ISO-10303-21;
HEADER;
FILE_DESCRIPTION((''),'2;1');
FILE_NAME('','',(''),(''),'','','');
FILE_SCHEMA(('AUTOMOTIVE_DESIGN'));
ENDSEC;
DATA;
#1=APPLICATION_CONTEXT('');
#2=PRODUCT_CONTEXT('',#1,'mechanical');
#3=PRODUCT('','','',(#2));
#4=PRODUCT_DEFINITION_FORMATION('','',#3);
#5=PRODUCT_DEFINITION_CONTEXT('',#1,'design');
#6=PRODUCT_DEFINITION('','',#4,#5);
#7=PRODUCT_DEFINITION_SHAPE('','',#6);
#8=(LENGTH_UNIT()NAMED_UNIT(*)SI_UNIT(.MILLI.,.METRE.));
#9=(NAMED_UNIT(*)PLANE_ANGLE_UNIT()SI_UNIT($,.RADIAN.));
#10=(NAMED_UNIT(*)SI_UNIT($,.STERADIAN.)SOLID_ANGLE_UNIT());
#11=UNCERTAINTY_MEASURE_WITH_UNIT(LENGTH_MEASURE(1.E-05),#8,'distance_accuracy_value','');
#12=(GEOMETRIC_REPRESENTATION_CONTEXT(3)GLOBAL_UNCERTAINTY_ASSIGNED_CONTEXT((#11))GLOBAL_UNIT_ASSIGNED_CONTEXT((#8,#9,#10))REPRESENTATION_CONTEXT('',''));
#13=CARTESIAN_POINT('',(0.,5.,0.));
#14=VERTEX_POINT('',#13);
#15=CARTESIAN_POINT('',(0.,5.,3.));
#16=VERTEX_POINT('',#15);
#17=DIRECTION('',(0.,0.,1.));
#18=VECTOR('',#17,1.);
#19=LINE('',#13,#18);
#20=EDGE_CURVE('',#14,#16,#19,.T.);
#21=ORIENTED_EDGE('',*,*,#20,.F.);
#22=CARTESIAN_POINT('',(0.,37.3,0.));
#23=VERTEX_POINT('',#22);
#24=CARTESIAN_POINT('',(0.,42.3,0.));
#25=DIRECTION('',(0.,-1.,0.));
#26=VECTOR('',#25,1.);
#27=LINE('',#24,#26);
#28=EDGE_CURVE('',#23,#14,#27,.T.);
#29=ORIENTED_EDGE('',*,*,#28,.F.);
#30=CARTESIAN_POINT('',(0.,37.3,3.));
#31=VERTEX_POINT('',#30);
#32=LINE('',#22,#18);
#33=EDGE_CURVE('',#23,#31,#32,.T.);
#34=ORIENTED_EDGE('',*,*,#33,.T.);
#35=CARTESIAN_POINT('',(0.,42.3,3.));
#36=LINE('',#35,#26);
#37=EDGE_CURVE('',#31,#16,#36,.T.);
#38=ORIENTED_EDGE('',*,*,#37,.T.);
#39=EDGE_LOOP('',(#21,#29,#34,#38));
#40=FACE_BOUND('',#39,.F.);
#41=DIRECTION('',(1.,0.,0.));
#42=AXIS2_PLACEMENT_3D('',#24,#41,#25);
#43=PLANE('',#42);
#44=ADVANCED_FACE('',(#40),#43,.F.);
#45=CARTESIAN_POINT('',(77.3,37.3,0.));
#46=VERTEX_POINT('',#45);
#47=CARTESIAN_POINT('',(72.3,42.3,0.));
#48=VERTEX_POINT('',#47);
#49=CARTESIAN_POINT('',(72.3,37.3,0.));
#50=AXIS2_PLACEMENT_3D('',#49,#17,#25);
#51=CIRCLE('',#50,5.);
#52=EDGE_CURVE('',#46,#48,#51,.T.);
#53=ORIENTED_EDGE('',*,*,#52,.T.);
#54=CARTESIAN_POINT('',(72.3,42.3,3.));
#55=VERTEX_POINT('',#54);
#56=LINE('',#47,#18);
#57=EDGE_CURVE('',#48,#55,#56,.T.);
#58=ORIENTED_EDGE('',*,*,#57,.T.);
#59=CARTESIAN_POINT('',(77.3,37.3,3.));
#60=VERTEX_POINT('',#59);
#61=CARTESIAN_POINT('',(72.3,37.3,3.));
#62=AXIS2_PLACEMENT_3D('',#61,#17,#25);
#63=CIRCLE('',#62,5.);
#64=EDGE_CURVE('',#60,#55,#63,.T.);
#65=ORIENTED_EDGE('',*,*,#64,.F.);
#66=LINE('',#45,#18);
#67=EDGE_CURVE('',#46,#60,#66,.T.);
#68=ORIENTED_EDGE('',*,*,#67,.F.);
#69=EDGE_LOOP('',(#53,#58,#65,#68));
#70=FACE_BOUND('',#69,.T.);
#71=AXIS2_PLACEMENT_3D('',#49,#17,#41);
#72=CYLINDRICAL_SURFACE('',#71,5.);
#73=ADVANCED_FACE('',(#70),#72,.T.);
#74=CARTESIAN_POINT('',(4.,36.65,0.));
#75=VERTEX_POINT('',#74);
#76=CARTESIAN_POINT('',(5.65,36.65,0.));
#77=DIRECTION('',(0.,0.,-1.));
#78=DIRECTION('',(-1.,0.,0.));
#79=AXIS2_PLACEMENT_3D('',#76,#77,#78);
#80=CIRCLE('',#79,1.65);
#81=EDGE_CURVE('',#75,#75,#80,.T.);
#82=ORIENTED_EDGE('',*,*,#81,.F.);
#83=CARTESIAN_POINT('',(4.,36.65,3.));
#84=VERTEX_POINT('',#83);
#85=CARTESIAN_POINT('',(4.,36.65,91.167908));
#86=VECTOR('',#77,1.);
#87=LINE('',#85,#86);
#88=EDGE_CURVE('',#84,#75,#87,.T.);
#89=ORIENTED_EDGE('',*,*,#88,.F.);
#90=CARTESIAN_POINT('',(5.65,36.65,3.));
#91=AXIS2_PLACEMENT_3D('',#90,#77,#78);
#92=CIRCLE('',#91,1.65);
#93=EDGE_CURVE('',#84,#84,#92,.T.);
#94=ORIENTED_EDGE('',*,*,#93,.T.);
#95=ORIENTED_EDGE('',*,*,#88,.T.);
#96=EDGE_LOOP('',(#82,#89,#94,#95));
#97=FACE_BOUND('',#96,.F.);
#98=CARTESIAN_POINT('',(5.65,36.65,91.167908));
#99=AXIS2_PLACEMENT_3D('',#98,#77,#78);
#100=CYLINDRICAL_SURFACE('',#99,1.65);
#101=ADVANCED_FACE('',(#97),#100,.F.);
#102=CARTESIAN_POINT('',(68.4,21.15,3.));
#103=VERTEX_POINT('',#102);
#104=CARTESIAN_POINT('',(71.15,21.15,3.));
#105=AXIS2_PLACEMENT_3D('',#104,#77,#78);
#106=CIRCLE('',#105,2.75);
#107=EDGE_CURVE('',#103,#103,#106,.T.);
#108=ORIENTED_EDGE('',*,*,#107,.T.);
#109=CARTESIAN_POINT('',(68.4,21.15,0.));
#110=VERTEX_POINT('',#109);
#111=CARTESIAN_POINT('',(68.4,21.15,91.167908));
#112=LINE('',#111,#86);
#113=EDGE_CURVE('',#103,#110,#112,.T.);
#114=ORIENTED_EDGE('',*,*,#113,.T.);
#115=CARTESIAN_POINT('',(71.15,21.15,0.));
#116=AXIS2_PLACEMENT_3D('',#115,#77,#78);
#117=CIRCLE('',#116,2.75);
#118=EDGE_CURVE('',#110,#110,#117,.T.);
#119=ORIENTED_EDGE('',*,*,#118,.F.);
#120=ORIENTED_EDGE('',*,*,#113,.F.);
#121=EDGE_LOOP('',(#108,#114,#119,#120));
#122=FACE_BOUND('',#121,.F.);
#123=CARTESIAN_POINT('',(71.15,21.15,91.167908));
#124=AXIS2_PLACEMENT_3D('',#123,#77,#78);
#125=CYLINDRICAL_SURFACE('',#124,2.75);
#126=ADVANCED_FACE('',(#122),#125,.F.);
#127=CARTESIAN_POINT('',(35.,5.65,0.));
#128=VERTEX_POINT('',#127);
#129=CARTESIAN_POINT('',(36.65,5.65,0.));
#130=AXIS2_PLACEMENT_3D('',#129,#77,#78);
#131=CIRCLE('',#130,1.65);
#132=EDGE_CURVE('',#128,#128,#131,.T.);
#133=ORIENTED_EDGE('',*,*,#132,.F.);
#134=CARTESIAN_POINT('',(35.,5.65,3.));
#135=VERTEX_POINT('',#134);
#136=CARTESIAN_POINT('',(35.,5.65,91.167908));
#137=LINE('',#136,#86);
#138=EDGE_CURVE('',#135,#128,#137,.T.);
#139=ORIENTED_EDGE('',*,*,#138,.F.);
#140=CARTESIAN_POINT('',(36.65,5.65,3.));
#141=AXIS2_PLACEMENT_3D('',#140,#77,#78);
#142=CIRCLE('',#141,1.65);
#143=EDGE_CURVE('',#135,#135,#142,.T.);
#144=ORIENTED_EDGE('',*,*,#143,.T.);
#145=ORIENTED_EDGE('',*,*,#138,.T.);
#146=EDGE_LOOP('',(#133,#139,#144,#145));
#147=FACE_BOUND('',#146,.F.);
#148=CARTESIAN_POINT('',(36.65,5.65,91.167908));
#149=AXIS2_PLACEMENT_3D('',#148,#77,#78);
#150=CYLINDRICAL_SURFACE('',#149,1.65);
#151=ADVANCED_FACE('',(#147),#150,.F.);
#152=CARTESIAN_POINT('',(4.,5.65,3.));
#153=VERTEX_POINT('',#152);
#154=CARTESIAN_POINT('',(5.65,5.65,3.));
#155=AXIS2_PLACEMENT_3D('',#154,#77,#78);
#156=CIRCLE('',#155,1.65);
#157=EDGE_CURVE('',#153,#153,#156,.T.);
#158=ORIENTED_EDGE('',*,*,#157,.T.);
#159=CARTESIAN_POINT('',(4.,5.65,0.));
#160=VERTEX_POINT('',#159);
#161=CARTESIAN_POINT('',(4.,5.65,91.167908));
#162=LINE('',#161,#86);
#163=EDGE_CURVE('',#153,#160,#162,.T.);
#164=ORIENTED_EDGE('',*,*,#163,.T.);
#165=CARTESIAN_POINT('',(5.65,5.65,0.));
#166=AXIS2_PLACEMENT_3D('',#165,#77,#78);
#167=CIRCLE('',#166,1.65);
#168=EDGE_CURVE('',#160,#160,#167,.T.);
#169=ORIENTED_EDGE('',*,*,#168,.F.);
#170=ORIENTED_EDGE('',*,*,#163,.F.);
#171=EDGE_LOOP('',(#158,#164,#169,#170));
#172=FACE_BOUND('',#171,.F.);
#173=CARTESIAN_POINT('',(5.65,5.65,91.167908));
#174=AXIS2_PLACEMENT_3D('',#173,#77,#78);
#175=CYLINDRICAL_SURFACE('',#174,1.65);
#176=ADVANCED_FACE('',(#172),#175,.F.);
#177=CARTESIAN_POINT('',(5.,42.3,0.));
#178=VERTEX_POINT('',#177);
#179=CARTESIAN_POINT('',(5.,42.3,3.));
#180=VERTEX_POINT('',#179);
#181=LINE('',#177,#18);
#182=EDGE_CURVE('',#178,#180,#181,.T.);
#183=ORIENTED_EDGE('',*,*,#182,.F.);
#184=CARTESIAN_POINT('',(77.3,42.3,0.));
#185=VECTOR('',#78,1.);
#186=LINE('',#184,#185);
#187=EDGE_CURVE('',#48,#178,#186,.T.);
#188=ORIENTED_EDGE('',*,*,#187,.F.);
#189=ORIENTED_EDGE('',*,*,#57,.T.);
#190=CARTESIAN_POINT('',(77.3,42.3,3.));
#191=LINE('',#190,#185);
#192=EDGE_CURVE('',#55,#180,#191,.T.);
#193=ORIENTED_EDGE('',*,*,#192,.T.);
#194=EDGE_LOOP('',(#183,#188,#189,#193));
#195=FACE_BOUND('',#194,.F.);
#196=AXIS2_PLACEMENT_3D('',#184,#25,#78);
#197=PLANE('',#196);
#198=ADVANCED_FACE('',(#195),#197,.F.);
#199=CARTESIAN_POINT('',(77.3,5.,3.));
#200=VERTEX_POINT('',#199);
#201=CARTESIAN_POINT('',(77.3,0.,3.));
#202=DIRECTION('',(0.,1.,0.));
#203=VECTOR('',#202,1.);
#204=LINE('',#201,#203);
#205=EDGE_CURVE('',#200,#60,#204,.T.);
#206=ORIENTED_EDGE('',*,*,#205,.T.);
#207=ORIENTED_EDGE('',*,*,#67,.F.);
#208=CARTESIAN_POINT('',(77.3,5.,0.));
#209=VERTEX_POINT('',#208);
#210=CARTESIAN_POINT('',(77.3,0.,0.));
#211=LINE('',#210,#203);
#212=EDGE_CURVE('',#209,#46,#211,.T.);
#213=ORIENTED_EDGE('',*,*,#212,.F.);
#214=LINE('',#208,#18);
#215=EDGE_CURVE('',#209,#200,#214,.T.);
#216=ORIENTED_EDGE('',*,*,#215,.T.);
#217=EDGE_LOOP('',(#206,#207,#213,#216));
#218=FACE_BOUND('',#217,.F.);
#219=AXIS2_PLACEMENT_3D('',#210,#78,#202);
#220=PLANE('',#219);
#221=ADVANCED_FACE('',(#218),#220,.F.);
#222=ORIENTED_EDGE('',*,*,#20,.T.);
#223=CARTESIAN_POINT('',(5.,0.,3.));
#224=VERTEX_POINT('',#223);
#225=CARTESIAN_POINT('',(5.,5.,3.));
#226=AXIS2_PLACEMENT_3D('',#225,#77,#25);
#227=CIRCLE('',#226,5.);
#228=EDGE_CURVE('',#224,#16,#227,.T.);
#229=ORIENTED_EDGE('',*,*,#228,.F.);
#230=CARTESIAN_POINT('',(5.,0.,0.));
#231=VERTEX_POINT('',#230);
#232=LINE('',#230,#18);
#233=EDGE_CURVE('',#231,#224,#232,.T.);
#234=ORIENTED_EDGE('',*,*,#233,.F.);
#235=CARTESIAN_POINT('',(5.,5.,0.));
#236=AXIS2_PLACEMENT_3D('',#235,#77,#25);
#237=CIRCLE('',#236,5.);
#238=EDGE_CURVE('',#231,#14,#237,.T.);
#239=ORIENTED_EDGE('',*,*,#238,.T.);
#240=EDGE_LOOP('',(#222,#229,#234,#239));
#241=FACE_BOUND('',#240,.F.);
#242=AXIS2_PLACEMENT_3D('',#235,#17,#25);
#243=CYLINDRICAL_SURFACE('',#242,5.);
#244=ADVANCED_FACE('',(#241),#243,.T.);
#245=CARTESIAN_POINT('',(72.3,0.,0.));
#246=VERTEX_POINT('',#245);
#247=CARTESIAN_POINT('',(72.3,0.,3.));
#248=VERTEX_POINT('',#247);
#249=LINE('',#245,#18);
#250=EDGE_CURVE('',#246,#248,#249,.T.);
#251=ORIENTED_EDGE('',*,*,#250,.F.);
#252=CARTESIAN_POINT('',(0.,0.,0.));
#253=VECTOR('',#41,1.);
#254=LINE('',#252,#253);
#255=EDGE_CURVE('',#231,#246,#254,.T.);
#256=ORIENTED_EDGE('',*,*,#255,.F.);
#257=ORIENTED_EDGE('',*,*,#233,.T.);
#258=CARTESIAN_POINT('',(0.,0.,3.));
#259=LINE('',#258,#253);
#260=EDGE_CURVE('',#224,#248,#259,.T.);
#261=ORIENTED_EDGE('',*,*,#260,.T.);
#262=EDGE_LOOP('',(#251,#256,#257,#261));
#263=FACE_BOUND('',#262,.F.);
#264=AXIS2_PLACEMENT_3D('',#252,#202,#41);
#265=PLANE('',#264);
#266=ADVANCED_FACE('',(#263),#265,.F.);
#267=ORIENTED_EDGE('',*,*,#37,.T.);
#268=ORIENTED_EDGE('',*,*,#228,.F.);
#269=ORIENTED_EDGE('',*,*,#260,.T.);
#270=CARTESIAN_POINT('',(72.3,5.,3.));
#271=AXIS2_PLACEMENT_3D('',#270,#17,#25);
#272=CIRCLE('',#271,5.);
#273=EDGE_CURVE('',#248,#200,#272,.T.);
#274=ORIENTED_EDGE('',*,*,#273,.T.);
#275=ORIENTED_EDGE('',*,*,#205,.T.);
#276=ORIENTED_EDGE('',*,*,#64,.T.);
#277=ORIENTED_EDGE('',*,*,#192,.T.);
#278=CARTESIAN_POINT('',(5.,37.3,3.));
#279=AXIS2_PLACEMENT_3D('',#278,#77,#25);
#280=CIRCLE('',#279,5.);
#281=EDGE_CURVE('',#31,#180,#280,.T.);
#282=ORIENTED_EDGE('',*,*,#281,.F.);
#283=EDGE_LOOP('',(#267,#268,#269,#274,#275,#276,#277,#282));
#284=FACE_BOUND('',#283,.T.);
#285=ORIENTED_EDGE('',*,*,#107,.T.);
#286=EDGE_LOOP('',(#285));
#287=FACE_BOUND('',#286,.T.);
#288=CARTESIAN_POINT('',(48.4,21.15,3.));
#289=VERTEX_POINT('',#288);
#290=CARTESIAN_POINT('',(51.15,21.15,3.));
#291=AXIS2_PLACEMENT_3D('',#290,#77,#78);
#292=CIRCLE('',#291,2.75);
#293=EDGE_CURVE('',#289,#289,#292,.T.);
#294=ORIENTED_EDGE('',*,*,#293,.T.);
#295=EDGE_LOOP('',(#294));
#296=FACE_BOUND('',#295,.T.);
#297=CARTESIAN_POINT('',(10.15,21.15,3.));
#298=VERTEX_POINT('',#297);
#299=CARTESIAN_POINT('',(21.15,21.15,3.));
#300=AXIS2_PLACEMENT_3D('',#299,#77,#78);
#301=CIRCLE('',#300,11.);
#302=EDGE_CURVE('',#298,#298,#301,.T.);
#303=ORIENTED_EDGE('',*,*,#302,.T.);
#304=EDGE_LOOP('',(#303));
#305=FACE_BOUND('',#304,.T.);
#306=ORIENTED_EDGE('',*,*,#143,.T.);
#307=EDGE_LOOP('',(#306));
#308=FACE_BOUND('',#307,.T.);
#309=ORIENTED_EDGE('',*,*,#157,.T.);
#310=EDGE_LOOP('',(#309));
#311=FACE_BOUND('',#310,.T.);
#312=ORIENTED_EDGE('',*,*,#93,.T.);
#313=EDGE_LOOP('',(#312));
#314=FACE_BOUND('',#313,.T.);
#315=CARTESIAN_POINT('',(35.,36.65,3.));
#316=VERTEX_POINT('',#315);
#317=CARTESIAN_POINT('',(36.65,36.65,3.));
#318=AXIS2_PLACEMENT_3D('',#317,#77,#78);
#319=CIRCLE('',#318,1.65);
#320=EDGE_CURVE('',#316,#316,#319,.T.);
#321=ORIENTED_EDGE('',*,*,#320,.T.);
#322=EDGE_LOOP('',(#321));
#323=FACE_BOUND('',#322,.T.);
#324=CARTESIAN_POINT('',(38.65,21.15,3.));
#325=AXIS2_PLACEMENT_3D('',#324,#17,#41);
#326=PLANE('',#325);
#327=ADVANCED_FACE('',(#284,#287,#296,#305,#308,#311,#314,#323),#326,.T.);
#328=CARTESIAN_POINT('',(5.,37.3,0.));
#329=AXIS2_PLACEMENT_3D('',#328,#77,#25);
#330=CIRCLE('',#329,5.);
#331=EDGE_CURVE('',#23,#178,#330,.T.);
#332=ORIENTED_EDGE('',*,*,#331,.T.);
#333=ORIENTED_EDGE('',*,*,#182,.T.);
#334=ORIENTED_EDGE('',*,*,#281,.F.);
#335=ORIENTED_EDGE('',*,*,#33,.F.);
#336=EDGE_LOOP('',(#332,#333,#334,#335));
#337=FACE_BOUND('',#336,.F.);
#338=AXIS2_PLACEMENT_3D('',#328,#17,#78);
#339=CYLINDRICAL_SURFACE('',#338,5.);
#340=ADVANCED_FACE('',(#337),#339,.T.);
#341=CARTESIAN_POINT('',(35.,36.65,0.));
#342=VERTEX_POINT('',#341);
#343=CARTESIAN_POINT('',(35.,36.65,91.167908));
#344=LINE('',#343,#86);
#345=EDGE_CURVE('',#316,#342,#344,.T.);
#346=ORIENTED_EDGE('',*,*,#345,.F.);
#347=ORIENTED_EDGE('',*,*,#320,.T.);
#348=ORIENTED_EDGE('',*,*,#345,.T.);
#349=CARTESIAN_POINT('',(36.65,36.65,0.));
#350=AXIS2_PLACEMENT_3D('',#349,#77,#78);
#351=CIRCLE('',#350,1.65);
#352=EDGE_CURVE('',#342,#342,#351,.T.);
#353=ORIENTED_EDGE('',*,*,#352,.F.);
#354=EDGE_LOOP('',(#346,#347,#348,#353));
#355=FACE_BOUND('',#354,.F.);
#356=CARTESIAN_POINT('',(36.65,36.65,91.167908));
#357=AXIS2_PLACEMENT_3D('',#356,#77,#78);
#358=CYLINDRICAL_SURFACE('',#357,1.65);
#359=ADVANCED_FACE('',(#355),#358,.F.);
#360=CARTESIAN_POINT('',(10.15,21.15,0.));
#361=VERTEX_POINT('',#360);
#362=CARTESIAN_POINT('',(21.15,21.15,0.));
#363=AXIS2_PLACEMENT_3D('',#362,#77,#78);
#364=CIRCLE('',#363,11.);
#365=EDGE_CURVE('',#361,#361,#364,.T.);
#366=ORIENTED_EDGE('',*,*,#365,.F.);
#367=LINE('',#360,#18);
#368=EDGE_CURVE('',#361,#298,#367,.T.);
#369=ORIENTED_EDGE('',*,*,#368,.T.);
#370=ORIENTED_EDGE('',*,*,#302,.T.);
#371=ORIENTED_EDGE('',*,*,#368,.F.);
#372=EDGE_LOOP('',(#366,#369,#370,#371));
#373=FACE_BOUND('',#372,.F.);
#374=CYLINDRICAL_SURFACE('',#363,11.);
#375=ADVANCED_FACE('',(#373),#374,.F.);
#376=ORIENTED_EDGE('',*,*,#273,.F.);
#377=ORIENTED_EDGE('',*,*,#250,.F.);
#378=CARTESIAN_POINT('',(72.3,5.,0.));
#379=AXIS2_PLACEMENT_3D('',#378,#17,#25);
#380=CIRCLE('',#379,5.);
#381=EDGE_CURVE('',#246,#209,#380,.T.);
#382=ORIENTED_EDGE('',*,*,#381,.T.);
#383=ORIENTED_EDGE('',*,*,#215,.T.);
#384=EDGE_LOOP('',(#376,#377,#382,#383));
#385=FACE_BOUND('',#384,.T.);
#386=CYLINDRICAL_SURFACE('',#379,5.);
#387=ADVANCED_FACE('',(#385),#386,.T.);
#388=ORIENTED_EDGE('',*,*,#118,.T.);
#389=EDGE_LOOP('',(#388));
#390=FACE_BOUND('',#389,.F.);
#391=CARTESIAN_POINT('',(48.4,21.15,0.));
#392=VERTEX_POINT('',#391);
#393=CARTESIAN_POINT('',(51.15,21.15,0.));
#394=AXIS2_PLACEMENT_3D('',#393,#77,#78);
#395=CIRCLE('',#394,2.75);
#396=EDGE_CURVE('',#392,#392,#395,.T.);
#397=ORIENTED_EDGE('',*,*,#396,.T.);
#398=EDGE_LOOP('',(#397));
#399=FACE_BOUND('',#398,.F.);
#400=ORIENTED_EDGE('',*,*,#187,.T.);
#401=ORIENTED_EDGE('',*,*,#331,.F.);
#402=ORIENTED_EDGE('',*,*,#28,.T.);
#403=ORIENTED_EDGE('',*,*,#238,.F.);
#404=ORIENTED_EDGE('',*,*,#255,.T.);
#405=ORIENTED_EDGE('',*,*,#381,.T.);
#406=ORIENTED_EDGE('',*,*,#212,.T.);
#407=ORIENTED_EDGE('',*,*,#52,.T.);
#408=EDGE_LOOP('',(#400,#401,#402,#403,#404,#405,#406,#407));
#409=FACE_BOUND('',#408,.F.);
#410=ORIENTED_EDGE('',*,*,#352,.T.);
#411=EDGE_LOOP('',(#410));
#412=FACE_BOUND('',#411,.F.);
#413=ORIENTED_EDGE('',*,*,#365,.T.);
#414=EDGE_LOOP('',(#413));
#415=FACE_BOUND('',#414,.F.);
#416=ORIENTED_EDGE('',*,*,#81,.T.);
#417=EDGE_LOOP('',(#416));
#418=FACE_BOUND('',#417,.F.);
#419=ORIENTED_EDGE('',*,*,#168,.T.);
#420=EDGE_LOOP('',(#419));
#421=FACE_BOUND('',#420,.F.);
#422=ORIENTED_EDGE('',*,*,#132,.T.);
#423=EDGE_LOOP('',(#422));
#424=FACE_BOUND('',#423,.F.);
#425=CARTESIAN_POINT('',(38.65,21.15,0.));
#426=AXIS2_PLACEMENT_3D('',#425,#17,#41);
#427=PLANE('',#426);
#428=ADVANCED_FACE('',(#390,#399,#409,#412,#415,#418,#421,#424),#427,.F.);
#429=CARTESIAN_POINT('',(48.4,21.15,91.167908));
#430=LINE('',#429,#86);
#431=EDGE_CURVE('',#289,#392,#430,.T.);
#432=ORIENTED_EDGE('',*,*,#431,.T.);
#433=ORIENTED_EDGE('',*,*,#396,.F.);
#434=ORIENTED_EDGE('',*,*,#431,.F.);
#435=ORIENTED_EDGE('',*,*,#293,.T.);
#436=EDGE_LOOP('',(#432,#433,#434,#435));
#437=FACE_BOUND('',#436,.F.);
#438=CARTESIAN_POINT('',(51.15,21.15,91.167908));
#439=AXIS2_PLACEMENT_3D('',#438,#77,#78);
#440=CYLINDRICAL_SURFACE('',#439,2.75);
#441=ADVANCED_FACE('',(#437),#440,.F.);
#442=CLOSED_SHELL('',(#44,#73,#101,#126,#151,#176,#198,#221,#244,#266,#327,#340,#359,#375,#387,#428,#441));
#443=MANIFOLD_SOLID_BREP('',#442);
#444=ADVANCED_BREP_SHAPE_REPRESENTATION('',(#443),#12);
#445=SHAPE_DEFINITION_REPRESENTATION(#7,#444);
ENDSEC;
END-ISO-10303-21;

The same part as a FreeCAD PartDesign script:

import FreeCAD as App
import Part
import Sketcher

V = App.Vector
Q = App.Units.Quantity


def edges_at(feature, points):
    """Names of the edges that pass closest to the given points."""
    edges = feature.Shape.Edges
    near = lambda p: min(range(len(edges)), key=lambda i: edges[i].distToShape(Part.Vertex(*p))[0])
    return sorted({f"Edge{near(p) + 1}" for p in points})


def add_polygon(sketch, points):
    """Adds a closed chain of lines whose ends are joined by coincident constraints."""
    first, n = sketch.GeometryCount, len(points)
    for a, b in zip(points, points[1:] + points[:1]):
        sketch.addGeometry(Part.LineSegment(App.Vector(*a, 0), App.Vector(*b, 0)), False)
    for i in range(n):
        sketch.addConstraint(Sketcher.Constraint("Coincident", first + i, 2, first + (i + 1) % n, 1))

doc = App.newDocument("Part")
body = doc.addObject("PartDesign::Body", "Body")

sketch1 = body.newObject("Sketcher::SketchObject", "Sketch")
sketch1.AttachmentSupport = (doc.getObject("XY_Plane"), [""])
sketch1.MapMode = "FlatFace"
add_polygon(sketch1, [(0, 0), (77, 0), (77, 42), (0, 42)])
sketch1.addGeometry(Part.Circle(V(21, 21, 0), V(0, 0, 1), 11), False)
sketch1.addConstraint([
    Sketcher.Constraint("Horizontal", 0),
    Sketcher.Constraint("Vertical", 1),
    Sketcher.Constraint("Horizontal", 2),
    Sketcher.Constraint("Vertical", 3),
    Sketcher.Constraint("Coincident", 3, 2, -1, 1),
    Sketcher.Constraint("Diameter", 4, Q("22 mm")),
    Sketcher.Constraint("DistanceX", 0, 1, 0, 2, Q("77.3 mm")),
    Sketcher.Constraint("DistanceY", 1, 1, 1, 2, Q("42.3 mm")),
    Sketcher.Constraint("DistanceX", -1, 1, 4, 3, Q("21.15 mm")),
    Sketcher.Constraint("DistanceY", -1, 1, 4, 3, Q("21.15 mm")),
])
pad1 = body.newObject("PartDesign::Pad", "Pad")
pad1.Profile = sketch1
pad1.Length = 3

sketch2 = body.newObject("Sketcher::SketchObject", "Sketch001")
sketch2.AttachmentSupport = (doc.getObject("XY_Plane"), [""])
sketch2.MapMode = "FlatFace"
sketch2.AttachmentOffset = App.Placement(V(0, 0, 3), App.Rotation())
sketch2.addGeometry([
    Part.Circle(V(5.7, 36.6, 0), V(0, 0, 1), 1.6),
    Part.Circle(V(36.6, 36.6, 0), V(0, 0, 1), 1.6),
    Part.Circle(V(36.6, 5.7, 0), V(0, 0, 1), 1.6),
    Part.Circle(V(5.7, 5.7, 0), V(0, 0, 1), 1.6),
], False)
sketch2.addConstraint([
    Sketcher.Constraint("Equal", 0, 1),
    Sketcher.Constraint("Equal", 1, 2),
    Sketcher.Constraint("Equal", 2, 3),
    Sketcher.Constraint("Horizontal", 0, 3, 1, 3),
    Sketcher.Constraint("Horizontal", 2, 3, 3, 3),
    Sketcher.Constraint("Vertical", 1, 3, 2, 3),
    Sketcher.Constraint("Vertical", 0, 3, 3, 3),
    Sketcher.Constraint("Diameter", 0, Q("3.3 mm")),
    Sketcher.Constraint("DistanceX", 0, 3, 1, 3, Q("31 mm")),
    Sketcher.Constraint("DistanceY", 2, 3, 1, 3, Q("31 mm")),
    Sketcher.Constraint("DistanceX", -1, 1, 0, 3, Q("5.65 mm")),
    Sketcher.Constraint("DistanceY", -1, 1, 0, 3, Q("36.65 mm")),
])
doc.recompute()
hole = body.newObject("PartDesign::Hole", "Hole")
hole.Profile = sketch2
hole.ThreadType = "None"
hole.Diameter = 3.3
hole.DepthType = "ThroughAll"

sketch3 = body.newObject("Sketcher::SketchObject", "Sketch002")
sketch3.AttachmentSupport = (doc.getObject("XY_Plane"), [""])
sketch3.MapMode = "FlatFace"
sketch3.AttachmentOffset = App.Placement(V(0, 0, 3), App.Rotation())
sketch3.addGeometry([
    Part.Circle(V(51.1, 21.1, 0), V(0, 0, 1), 2.8),
    Part.Circle(V(71.2, 21.1, 0), V(0, 0, 1), 2.8),
], False)
sketch3.addConstraint([
    Sketcher.Constraint("Equal", 0, 1),
    Sketcher.Constraint("Horizontal", 0, 3, 1, 3),
    Sketcher.Constraint("Diameter", 0, Q("5.5 mm")),
    Sketcher.Constraint("DistanceX", 0, 3, 1, 3, Q("20 mm")),
    Sketcher.Constraint("DistanceX", -1, 1, 0, 3, Q("51.15 mm")),
    Sketcher.Constraint("DistanceY", -1, 1, 0, 3, Q("21.15 mm")),
])
doc.recompute()
hole2 = body.newObject("PartDesign::Hole", "Hole001")
hole2.Profile = sketch3
hole2.ThreadType = "None"
hole2.Diameter = 5.5
hole2.DepthType = "ThroughAll"
doc.recompute()

fillet = body.newObject("PartDesign::Fillet", "Fillet")
fillet.Base = (hole2, edges_at(hole2, [
    (77.3, 0, 1.5),
    (0, 0, 1.5),
    (77.3, 42.3, 1.5),
    (0, 42.3, 1.5),
]))
fillet.Radius = 5

doc.recompute()
